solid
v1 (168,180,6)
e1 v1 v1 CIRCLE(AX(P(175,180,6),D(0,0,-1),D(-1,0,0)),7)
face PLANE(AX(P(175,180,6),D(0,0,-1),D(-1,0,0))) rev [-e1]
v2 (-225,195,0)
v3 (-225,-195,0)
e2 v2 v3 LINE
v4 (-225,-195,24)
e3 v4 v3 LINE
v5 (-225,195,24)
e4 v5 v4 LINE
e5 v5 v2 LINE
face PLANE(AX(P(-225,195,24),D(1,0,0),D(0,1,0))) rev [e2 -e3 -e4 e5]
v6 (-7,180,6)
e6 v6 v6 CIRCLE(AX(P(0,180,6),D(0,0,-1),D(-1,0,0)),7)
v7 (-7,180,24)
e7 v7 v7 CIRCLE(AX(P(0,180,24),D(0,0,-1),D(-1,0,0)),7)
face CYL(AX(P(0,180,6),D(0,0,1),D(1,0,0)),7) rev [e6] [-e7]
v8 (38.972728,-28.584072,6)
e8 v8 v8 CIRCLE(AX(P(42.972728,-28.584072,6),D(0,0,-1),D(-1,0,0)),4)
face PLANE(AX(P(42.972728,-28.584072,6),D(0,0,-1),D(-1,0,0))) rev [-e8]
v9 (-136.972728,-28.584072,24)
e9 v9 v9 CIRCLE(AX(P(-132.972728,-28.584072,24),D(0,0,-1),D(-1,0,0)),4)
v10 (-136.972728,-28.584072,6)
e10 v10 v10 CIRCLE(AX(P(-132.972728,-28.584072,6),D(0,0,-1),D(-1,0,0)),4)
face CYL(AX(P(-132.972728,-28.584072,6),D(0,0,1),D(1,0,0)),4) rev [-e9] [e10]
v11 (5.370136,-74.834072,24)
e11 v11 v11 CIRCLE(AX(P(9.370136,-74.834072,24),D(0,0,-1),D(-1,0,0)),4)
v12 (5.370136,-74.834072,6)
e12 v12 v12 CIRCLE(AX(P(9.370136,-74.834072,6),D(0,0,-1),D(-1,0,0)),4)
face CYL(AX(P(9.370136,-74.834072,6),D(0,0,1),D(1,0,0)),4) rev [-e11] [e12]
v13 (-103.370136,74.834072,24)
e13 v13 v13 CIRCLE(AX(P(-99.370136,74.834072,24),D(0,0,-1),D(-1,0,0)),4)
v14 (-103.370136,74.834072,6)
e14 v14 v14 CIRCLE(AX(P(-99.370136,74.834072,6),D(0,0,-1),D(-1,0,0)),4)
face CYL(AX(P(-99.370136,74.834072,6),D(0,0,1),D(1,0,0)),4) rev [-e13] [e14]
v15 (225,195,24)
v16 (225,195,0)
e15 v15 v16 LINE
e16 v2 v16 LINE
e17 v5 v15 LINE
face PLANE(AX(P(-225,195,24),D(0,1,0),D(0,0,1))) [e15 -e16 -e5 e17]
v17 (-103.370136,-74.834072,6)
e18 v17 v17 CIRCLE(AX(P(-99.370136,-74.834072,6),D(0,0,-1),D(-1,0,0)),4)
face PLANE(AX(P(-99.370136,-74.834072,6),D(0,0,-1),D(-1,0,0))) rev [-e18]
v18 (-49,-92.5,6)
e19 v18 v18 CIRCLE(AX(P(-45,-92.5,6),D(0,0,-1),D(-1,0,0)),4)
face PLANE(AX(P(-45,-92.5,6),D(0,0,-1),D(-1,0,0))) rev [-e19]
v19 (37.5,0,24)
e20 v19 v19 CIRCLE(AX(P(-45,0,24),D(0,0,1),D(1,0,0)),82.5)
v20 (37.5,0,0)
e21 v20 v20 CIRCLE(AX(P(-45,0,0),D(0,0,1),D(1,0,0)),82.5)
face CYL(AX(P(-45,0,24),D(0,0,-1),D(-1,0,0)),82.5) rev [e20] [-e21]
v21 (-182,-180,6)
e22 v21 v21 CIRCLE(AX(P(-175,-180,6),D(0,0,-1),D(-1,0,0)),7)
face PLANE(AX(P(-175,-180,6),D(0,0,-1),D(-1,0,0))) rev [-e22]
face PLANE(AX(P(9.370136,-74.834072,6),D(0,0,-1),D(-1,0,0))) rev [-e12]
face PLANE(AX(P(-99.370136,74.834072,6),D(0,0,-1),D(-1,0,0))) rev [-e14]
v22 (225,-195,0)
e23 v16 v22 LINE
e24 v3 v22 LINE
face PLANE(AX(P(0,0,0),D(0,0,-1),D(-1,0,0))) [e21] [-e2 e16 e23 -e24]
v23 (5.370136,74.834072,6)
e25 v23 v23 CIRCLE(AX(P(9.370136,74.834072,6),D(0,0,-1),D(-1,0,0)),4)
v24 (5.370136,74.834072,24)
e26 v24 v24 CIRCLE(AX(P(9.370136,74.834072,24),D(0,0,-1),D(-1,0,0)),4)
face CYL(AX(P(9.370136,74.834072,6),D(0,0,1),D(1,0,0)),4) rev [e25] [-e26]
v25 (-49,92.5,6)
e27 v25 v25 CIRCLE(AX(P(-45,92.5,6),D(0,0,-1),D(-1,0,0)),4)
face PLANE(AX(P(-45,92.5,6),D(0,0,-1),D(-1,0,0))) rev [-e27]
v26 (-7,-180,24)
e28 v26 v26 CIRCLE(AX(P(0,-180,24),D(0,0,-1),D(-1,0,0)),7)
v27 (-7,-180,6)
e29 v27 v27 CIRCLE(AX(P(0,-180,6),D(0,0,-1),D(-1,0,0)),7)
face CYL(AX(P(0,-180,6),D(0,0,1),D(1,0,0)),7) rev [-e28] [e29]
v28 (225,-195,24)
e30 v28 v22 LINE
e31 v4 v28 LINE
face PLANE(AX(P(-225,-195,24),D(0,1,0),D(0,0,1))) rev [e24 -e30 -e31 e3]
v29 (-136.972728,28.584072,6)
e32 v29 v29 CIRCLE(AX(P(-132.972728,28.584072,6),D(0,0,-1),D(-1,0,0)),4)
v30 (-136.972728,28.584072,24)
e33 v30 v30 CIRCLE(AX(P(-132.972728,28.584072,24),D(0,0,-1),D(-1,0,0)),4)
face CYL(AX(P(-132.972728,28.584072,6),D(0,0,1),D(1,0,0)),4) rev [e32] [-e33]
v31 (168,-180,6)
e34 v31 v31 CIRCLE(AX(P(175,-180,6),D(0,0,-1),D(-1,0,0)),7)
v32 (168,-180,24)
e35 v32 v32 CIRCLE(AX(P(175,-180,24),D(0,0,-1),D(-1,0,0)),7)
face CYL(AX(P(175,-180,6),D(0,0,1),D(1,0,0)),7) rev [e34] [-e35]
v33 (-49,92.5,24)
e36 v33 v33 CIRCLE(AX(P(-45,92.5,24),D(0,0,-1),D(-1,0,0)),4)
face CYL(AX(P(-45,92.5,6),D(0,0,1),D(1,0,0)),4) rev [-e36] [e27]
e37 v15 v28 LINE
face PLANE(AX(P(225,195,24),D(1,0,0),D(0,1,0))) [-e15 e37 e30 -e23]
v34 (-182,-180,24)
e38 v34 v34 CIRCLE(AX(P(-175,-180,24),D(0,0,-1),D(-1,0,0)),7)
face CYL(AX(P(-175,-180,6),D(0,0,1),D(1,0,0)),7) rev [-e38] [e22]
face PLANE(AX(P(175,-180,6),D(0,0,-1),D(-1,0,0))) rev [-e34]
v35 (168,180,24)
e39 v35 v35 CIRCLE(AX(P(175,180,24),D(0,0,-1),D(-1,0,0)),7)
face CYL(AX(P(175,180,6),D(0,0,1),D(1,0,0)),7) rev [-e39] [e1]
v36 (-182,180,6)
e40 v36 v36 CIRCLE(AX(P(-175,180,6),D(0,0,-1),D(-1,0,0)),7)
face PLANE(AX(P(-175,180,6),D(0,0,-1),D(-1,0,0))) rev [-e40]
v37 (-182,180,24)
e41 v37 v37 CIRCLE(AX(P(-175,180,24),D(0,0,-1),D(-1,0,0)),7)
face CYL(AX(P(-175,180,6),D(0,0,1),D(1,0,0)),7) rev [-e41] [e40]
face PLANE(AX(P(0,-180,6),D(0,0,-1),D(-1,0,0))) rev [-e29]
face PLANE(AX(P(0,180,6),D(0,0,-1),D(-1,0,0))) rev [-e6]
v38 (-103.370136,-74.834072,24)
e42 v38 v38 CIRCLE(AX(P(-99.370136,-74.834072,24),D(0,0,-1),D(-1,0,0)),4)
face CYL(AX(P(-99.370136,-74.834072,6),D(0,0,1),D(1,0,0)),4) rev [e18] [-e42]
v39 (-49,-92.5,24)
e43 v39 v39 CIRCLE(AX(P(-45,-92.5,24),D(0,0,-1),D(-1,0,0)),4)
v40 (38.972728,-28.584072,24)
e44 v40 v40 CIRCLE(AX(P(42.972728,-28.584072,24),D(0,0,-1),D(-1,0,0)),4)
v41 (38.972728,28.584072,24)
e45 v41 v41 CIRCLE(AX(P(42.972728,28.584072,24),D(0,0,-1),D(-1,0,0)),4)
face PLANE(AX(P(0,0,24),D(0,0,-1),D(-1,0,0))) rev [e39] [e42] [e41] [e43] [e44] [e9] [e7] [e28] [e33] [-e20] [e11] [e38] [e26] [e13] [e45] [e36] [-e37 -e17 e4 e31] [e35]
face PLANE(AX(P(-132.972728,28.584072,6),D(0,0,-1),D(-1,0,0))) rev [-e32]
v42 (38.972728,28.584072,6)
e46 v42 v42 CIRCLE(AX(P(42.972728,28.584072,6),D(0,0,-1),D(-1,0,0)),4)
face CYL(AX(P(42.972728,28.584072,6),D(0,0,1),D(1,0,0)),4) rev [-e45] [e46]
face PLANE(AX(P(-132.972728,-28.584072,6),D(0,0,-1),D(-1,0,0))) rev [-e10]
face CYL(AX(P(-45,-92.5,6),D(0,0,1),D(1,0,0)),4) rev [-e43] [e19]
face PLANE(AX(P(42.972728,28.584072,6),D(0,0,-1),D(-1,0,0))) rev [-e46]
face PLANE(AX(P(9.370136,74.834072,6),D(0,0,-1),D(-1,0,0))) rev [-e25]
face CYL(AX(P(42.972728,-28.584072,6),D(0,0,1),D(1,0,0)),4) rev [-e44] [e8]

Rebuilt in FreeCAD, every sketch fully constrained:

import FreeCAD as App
import Part
import Sketcher

doc = App.newDocument("Part")
body = doc.addObject("PartDesign::Body", "Body")

# Sketch on XY plane
sketch1 = body.newObject("Sketcher::SketchObject", "Sketch")
sketch1.AttachmentSupport = (doc.getObject("XY_Plane"), [""])
sketch1.MapMode = "FlatFace"
sketch1.addGeometry([
    Part.LineSegment(App.Vector(-225, 195, 0), App.Vector(-225, -195, 0)),  # 0
    Part.LineSegment(App.Vector(-225, -195, 0), App.Vector(225, -195, 0)),  # 1
    Part.LineSegment(App.Vector(225, -195, 0), App.Vector(225, 195, 0)),  # 2
    Part.LineSegment(App.Vector(225, 195, 0), App.Vector(-225, 195, 0)),  # 3
    Part.Circle(App.Vector(-45, 0, 0), App.Vector(0, 0, 1), 82.5),  # 4
], False)
sketch1.addConstraint([
    Sketcher.Constraint("Coincident", 0, 2, 1, 1),
    Sketcher.Constraint("Coincident", 1, 2, 2, 1),
    Sketcher.Constraint("Coincident", 2, 2, 3, 1),
    Sketcher.Constraint("Coincident", 3, 2, 0, 1),
    Sketcher.Constraint("Vertical", 0),
    Sketcher.Constraint("Horizontal", 1),
    Sketcher.Constraint("Vertical", 2),
    Sketcher.Constraint("Horizontal", 3),
    Sketcher.Constraint("Symmetric", 0, 2, 2, 2, -1, 1),
    Sketcher.Constraint("PointOnObject", 4, 3, -1),
    Sketcher.Constraint("Diameter", 4, 165.0),
    Sketcher.Constraint("DistanceX", 1, 1, 1, 2, 450.0),
    Sketcher.Constraint("DistanceY", 0, 2, 0, 1, 390.0),
    Sketcher.Constraint("DistanceX", 4, 3, -1, 1, 45.0),
])
pad1 = body.newObject("PartDesign::Pad", "Pad")
pad1.Profile = sketch1
pad1.Length = 24

# Sketch on XY plane
sketch2 = body.newObject("Sketcher::SketchObject", "Sketch001")
sketch2.AttachmentSupport = (doc.getObject("XY_Plane"), [""])
sketch2.MapMode = "FlatFace"
sketch2.AttachmentOffset = App.Placement(App.Vector(0, 0, 24), App.Rotation())
sketch2.addGeometry([
    Part.Circle(App.Vector(-45, 92.5, 0), App.Vector(0, 0, 1), 4),  # 0
    Part.Circle(App.Vector(9.370136, 74.834072, 0), App.Vector(0, 0, 1), 4),  # 1
    Part.Circle(App.Vector(42.972728, 28.584072, 0), App.Vector(0, 0, 1), 4),  # 2
    Part.Circle(App.Vector(42.972728, -28.584072, 0), App.Vector(0, 0, 1), 4),  # 3
    Part.Circle(App.Vector(9.370136, -74.834072, 0), App.Vector(0, 0, 1), 4),  # 4
    Part.Circle(App.Vector(-45, -92.5, 0), App.Vector(0, 0, 1), 4),  # 5
    Part.Circle(App.Vector(-99.370136, -74.834072, 0), App.Vector(0, 0, 1), 4),  # 6
    Part.Circle(App.Vector(-132.972728, -28.584072, 0), App.Vector(0, 0, 1), 4),  # 7
    Part.Circle(App.Vector(-132.972728, 28.584072, 0), App.Vector(0, 0, 1), 4),  # 8
    Part.Circle(App.Vector(-99.370136, 74.834072, 0), App.Vector(0, 0, 1), 4),  # 9
    Part.Circle(App.Vector(0, 180, 0), App.Vector(0, 0, 1), 7),  # 10
    Part.Circle(App.Vector(-175, 180, 0), App.Vector(0, 0, 1), 7),  # 11
    Part.Circle(App.Vector(175, 180, 0), App.Vector(0, 0, 1), 7),  # 12
    Part.Circle(App.Vector(-175, -180, 0), App.Vector(0, 0, 1), 7),  # 13
    Part.Circle(App.Vector(0, -180, 0), App.Vector(0, 0, 1), 7),  # 14
    Part.Circle(App.Vector(175, -180, 0), App.Vector(0, 0, 1), 7),  # 15
], False)
sketch2.addConstraint([
    Sketcher.Constraint("Equal", 0, 1),
    Sketcher.Constraint("Equal", 1, 2),
    Sketcher.Constraint("Equal", 2, 3),
    Sketcher.Constraint("Equal", 3, 4),
    Sketcher.Constraint("Equal", 4, 5),
    Sketcher.Constraint("Equal", 5, 6),
    Sketcher.Constraint("Equal", 6, 7),
    Sketcher.Constraint("Equal", 7, 8),
    Sketcher.Constraint("Equal", 8, 9),
    Sketcher.Constraint("Equal", 10, 11),
    Sketcher.Constraint("Equal", 11, 12),
    Sketcher.Constraint("Equal", 12, 13),
    Sketcher.Constraint("Equal", 13, 14),
    Sketcher.Constraint("Equal", 14, 15),
    Sketcher.Constraint("Symmetric", 12, 3, 13, 3, -1, 1),
    Sketcher.Constraint("Symmetric", 10, 3, 14, 3, -1, 1),
    Sketcher.Constraint("Symmetric", 11, 3, 15, 3, -1, 1),
    Sketcher.Constraint("Symmetric", 11, 3, 12, 3, -2),
    Sketcher.Constraint("Symmetric", 2, 3, 3, 3, -1),
    Sketcher.Constraint("Symmetric", 1, 3, 4, 3, -1),
    Sketcher.Constraint("Symmetric", 0, 3, 5, 3, -1),
    Sketcher.Constraint("Symmetric", 7, 3, 8, 3, -1),
    Sketcher.Constraint("Symmetric", 6, 3, 9, 3, -1),
    Sketcher.Constraint("PointOnObject", 10, 3, -2),
    Sketcher.Constraint("Horizontal", 4, 3, 6, 3),
    Sketcher.Constraint("Horizontal", 3, 3, 7, 3),
    Sketcher.Constraint("Horizontal", 10, 3, 11, 3),
    Sketcher.Constraint("Diameter", 0, 8.0),
    Sketcher.Constraint("Diameter", 10, 14.0),
    Sketcher.Constraint("DistanceX", 0, 3, -1, 1, 45.0),
    Sketcher.Constraint("DistanceY", -1, 1, 10, 3, 180.0),
    Sketcher.Constraint("DistanceX", 11, 3, -1, 1, 175.0),
    Sketcher.Constraint("DistanceY", 5, 3, 0, 3, 185.0),
    Sketcher.Constraint("DistanceY", 2, 3, 1, 3, 46.25),
    Sketcher.Constraint("DistanceY", -1, 1, 1, 3, 74.834072),
    Sketcher.Constraint("DistanceX", 1, 3, 2, 3, 33.602592),
    Sketcher.Constraint("DistanceX", 6, 3, 4, 3, 108.740272),
    Sketcher.Constraint("DistanceX", 7, 3, 6, 3, 33.602592),
    Sketcher.Constraint("DistanceX", -1, 1, 1, 3, 9.370136),
])
pocket1 = body.newObject("PartDesign::Pocket", "Pocket")
pocket1.Profile = sketch2
pocket1.Length = 18

doc.recompute()
